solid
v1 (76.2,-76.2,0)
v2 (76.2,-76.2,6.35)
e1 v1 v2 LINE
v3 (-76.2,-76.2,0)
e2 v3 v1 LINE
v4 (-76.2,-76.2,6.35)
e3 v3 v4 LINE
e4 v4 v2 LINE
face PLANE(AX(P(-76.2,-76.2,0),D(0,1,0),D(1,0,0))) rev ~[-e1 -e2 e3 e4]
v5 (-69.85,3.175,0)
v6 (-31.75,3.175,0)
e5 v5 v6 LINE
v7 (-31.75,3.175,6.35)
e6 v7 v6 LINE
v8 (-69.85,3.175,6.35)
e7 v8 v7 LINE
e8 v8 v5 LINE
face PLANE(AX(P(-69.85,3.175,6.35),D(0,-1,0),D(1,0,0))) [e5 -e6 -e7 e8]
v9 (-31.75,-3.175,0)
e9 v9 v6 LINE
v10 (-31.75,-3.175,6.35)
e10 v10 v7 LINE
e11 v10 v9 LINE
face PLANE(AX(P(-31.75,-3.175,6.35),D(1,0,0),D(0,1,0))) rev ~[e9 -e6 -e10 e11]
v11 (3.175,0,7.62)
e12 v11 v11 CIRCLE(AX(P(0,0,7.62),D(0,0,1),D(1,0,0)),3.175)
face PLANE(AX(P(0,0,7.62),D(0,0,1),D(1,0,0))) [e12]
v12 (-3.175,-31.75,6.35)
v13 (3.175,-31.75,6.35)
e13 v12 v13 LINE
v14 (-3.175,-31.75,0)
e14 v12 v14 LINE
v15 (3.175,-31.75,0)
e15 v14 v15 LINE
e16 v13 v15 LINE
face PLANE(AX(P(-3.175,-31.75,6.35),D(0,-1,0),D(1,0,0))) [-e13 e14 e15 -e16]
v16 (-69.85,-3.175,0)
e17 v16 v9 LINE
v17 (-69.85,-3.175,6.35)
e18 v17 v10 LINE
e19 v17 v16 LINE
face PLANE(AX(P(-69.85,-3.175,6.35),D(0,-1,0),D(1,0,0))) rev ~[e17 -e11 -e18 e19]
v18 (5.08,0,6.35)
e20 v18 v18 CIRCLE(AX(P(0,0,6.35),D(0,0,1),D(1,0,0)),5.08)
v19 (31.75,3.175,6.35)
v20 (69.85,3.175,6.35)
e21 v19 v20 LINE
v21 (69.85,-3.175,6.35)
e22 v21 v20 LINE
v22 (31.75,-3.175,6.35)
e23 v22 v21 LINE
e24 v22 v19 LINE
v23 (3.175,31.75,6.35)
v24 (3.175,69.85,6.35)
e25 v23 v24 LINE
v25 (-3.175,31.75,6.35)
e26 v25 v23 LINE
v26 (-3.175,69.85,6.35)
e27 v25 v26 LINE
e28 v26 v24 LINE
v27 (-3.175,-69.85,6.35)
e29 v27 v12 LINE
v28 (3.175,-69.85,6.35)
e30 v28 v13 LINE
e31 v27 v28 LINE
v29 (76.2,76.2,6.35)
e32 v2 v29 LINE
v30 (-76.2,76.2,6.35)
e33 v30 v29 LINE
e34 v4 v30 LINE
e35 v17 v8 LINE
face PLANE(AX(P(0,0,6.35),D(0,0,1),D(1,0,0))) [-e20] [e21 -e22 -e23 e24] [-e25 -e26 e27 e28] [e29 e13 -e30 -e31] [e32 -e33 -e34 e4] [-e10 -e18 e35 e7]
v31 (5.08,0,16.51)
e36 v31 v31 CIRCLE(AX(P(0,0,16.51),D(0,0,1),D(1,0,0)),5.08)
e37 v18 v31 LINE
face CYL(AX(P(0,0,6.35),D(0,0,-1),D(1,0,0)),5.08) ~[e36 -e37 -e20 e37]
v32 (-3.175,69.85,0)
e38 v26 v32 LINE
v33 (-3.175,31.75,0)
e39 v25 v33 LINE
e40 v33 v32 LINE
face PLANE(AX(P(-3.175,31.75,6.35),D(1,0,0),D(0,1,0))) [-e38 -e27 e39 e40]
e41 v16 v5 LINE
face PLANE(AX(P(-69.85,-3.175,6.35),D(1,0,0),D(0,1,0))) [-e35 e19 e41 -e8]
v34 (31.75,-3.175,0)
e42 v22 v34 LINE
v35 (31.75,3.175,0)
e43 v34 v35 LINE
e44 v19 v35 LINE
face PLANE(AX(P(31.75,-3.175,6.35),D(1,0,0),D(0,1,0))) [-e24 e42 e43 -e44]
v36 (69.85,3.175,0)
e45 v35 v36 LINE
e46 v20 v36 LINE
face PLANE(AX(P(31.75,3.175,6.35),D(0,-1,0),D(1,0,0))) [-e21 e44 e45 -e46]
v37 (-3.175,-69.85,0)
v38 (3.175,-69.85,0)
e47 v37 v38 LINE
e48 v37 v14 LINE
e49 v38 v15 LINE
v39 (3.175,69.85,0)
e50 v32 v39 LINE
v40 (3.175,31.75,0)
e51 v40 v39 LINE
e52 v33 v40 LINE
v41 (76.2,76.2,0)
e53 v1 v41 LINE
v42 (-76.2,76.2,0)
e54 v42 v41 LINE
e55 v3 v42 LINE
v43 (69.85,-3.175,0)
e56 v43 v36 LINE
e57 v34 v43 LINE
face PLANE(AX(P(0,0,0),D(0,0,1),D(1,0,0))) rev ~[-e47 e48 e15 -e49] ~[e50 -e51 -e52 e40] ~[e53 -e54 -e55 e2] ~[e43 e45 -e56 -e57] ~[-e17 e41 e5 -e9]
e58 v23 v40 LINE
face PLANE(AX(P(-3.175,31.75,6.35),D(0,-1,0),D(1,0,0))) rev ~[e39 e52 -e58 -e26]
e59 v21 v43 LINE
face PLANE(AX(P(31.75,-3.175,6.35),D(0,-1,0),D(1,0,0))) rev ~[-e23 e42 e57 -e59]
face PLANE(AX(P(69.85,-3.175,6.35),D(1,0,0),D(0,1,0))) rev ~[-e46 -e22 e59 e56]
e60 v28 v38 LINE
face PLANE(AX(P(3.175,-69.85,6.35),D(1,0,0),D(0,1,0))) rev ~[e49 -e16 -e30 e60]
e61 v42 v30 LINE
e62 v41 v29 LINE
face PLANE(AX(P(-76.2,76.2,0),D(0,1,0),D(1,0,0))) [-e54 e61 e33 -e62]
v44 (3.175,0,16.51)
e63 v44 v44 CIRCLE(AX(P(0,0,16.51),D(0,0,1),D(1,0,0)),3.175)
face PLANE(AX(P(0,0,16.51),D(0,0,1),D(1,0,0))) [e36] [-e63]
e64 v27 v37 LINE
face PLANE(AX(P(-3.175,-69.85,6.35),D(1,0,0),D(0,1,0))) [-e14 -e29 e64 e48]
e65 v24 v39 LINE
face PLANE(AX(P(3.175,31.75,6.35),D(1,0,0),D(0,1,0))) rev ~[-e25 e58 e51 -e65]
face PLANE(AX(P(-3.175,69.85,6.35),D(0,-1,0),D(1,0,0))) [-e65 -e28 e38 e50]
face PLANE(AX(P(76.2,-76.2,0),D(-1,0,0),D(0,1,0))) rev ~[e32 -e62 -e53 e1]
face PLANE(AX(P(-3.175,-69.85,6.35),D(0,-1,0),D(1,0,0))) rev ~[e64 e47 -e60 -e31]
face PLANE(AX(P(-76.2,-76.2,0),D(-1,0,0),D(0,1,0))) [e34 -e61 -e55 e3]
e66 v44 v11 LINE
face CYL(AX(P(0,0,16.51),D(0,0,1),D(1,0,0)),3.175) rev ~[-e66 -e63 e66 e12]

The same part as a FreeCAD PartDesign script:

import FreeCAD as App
import Part
import Sketcher

V = App.Vector
Q = App.Units.Quantity

doc = App.newDocument("Part")
body = doc.addObject("PartDesign::Body", "Body")

sketch1 = body.newObject("Sketcher::SketchObject", "Sketch")
sketch1.AttachmentSupport = (doc.getObject("XY_Plane"), [""])
sketch1.MapMode = "FlatFace"
sketch1.addGeometry([
    Part.LineSegment(V(-76, 76, 0), V(-76, -76, 0)),
    Part.LineSegment(V(-76, -76, 0), V(76, -76, 0)),
    Part.LineSegment(V(76, -76, 0), V(76, 76, 0)),
    Part.LineSegment(V(76, 76, 0), V(-76, 76, 0)),
], False)
sketch1.addConstraint([
    Sketcher.Constraint("Coincident", 0, 2, 1, 1),
    Sketcher.Constraint("Coincident", 1, 2, 2, 1),
    Sketcher.Constraint("Coincident", 2, 2, 3, 1),
    Sketcher.Constraint("Coincident", 3, 2, 0, 1),
    Sketcher.Constraint("Vertical", 0),
    Sketcher.Constraint("Horizontal", 1),
    Sketcher.Constraint("Vertical", 2),
    Sketcher.Constraint("Horizontal", 3),
    Sketcher.Constraint("Symmetric", 0, 2, 2, 2, -1, 1),
    Sketcher.Constraint("Equal", 3, 0),
    Sketcher.Constraint("DistanceX", 1, 1, 1, 2, Q("6 in")),
])
pad1 = body.newObject("PartDesign::Pad", "Pad")
pad1.Profile = sketch1
pad1.Length = Q("0.25 in")

sketch2 = body.newObject("Sketcher::SketchObject", "Sketch001")
sketch2.AttachmentSupport = (doc.getObject("XY_Plane"), [""])
sketch2.MapMode = "FlatFace"
sketch2.AttachmentOffset = App.Placement(V(0, 0, 0.25 * 25.4), App.Rotation())
sketch2.addGeometry([
    Part.LineSegment(V(32, 3, 0), V(32, -3, 0)),
    Part.LineSegment(V(32, -3, 0), V(70, -3, 0)),
    Part.LineSegment(V(70, -3, 0), V(70, 3, 0)),
    Part.LineSegment(V(70, 3, 0), V(32, 3, 0)),
], False)
sketch2.addConstraint([
    Sketcher.Constraint("Coincident", 0, 2, 1, 1),
    Sketcher.Constraint("Coincident", 1, 2, 2, 1),
    Sketcher.Constraint("Coincident", 2, 2, 3, 1),
    Sketcher.Constraint("Coincident", 3, 2, 0, 1),
    Sketcher.Constraint("Vertical", 0),
    Sketcher.Constraint("Horizontal", 1),
    Sketcher.Constraint("Vertical", 2),
    Sketcher.Constraint("Horizontal", 3),
    Sketcher.Constraint("DistanceX", 1, 1, 1, 2, Q("1.5 in")),
    Sketcher.Constraint("DistanceY", 0, 2, 0, 1, Q("0.25 in")),
    Sketcher.Constraint("DistanceX", -1, 1, 0, 2, Q("1.25 in")),
    Sketcher.Constraint("DistanceY", 0, 2, -1, 1, Q("0.125 in")),
])
pocket1 = body.newObject("PartDesign::Pocket", "Pocket")
pocket1.Profile = sketch2
pocket1.Length = Q("1 in")

sketch3 = body.newObject("Sketcher::SketchObject", "Sketch002")
sketch3.AttachmentSupport = (doc.getObject("XY_Plane"), [""])
sketch3.MapMode = "FlatFace"
sketch3.AttachmentOffset = App.Placement(V(0, 0, 0.25 * 25.4), App.Rotation())
sketch3.addGeometry([
    Part.LineSegment(V(-3, -32, 0), V(-3, -70, 0)),
    Part.LineSegment(V(-3, -70, 0), V(3, -70, 0)),
    Part.LineSegment(V(3, -70, 0), V(3, -32, 0)),
    Part.LineSegment(V(3, -32, 0), V(-3, -32, 0)),
], False)
sketch3.addConstraint([
    Sketcher.Constraint("Coincident", 0, 2, 1, 1),
    Sketcher.Constraint("Coincident", 1, 2, 2, 1),
    Sketcher.Constraint("Coincident", 2, 2, 3, 1),
    Sketcher.Constraint("Coincident", 3, 2, 0, 1),
    Sketcher.Constraint("Vertical", 0),
    Sketcher.Constraint("Horizontal", 1),
    Sketcher.Constraint("Vertical", 2),
    Sketcher.Constraint("Horizontal", 3),
    Sketcher.Constraint("DistanceY", 0, 2, 0, 1, Q("1.5 in")),
    Sketcher.Constraint("DistanceX", 1, 1, 1, 2, Q("0.25 in")),
    Sketcher.Constraint("DistanceY", 0, 2, -1, 1, Q("2.75 in")),
    Sketcher.Constraint("DistanceX", 0, 2, -1, 1, Q("0.125 in")),
])
pocket2 = body.newObject("PartDesign::Pocket", "Pocket001")
pocket2.Profile = sketch3
pocket2.Length = Q("1 in")

sketch4 = body.newObject("Sketcher::SketchObject", "Sketch003")
sketch4.AttachmentSupport = (doc.getObject("XY_Plane"), [""])
sketch4.MapMode = "FlatFace"
sketch4.AttachmentOffset = App.Placement(V(0, 0, 0.25 * 25.4), App.Rotation())
sketch4.addGeometry([
    Part.LineSegment(V(-70, 3, 0), V(-70, -3, 0)),
    Part.LineSegment(V(-70, -3, 0), V(-32, -3, 0)),
    Part.LineSegment(V(-32, -3, 0), V(-32, 3, 0)),
    Part.LineSegment(V(-32, 3, 0), V(-70, 3, 0)),
], False)
sketch4.addConstraint([
    Sketcher.Constraint("Coincident", 0, 2, 1, 1),
    Sketcher.Constraint("Coincident", 1, 2, 2, 1),
    Sketcher.Constraint("Coincident", 2, 2, 3, 1),
    Sketcher.Constraint("Coincident", 3, 2, 0, 1),
    Sketcher.Constraint("Vertical", 0),
    Sketcher.Constraint("Horizontal", 1),
    Sketcher.Constraint("Vertical", 2),
    Sketcher.Constraint("Horizontal", 3),
    Sketcher.Constraint("DistanceX", 1, 1, 1, 2, Q("1.5 in")),
    Sketcher.Constraint("DistanceY", 0, 2, 0, 1, Q("0.25 in")),
    Sketcher.Constraint("DistanceX", 0, 2, -1, 1, Q("2.75 in")),
    Sketcher.Constraint("DistanceY", 0, 2, -1, 1, Q("0.125 in")),
])
pocket3 = body.newObject("PartDesign::Pocket", "Pocket002")
pocket3.Profile = sketch4
pocket3.Length = Q("1 in")

sketch5 = body.newObject("Sketcher::SketchObject", "Sketch004")
sketch5.AttachmentSupport = (doc.getObject("XY_Plane"), [""])
sketch5.MapMode = "FlatFace"
sketch5.AttachmentOffset = App.Placement(V(0, 0, 0.25 * 25.4), App.Rotation())
sketch5.addGeometry([
    Part.LineSegment(V(-3, 70, 0), V(-3, 32, 0)),
    Part.LineSegment(V(-3, 32, 0), V(3, 32, 0)),
    Part.LineSegment(V(3, 32, 0), V(3, 70, 0)),
    Part.LineSegment(V(3, 70, 0), V(-3, 70, 0)),
], False)
sketch5.addConstraint([
    Sketcher.Constraint("Coincident", 0, 2, 1, 1),
    Sketcher.Constraint("Coincident", 1, 2, 2, 1),
    Sketcher.Constraint("Coincident", 2, 2, 3, 1),
    Sketcher.Constraint("Coincident", 3, 2, 0, 1),
    Sketcher.Constraint("Vertical", 0),
    Sketcher.Constraint("Horizontal", 1),
    Sketcher.Constraint("Vertical", 2),
    Sketcher.Constraint("Horizontal", 3),
    Sketcher.Constraint("DistanceY", 0, 2, 0, 1, Q("1.5 in")),
    Sketcher.Constraint("DistanceX", 1, 1, 1, 2, Q("0.25 in")),
    Sketcher.Constraint("DistanceY", -1, 1, 0, 2, Q("1.25 in")),
    Sketcher.Constraint("DistanceX", 0, 2, -1, 1, Q("0.125 in")),
])
pocket4 = body.newObject("PartDesign::Pocket", "Pocket003")
pocket4.Profile = sketch5
pocket4.Length = Q("1 in")

sketch6 = body.newObject("Sketcher::SketchObject", "Sketch005")
sketch6.AttachmentSupport = (doc.getObject("XY_Plane"), [""])
sketch6.MapMode = "FlatFace"
sketch6.AttachmentOffset = App.Placement(V(0, 0, 0.25 * 25.4), App.Rotation())
sketch6.addGeometry(Part.Circle(V(0, 0, 0), V(0, 0, 1), 5), False)
sketch6.addConstraint([
    Sketcher.Constraint("Coincident", 0, 3, -1, 1),
    Sketcher.Constraint("Diameter", 0, Q("0.4 in")),
])
pad2 = body.newObject("PartDesign::Pad", "Pad001")
pad2.Profile = sketch6
pad2.Length = Q("0.4 in")

sketch7 = body.newObject("Sketcher::SketchObject", "Sketch006")
sketch7.AttachmentSupport = (doc.getObject("XY_Plane"), [""])
sketch7.MapMode = "FlatFace"
sketch7.AttachmentOffset = App.Placement(V(0, 0, 0.65 * 25.4), App.Rotation())
sketch7.addGeometry(Part.Circle(V(0, 0, 0), V(0, 0, 1), 3.2), False)
sketch7.addConstraint([
    Sketcher.Constraint("Coincident", 0, 3, -1, 1),
    Sketcher.Constraint("Diameter", 0, Q("0.25 in")),
])
pocket5 = body.newObject("PartDesign::Pocket", "Pocket004")
pocket5.Profile = sketch7
pocket5.Length = Q("0.35 in")

doc.recompute()
